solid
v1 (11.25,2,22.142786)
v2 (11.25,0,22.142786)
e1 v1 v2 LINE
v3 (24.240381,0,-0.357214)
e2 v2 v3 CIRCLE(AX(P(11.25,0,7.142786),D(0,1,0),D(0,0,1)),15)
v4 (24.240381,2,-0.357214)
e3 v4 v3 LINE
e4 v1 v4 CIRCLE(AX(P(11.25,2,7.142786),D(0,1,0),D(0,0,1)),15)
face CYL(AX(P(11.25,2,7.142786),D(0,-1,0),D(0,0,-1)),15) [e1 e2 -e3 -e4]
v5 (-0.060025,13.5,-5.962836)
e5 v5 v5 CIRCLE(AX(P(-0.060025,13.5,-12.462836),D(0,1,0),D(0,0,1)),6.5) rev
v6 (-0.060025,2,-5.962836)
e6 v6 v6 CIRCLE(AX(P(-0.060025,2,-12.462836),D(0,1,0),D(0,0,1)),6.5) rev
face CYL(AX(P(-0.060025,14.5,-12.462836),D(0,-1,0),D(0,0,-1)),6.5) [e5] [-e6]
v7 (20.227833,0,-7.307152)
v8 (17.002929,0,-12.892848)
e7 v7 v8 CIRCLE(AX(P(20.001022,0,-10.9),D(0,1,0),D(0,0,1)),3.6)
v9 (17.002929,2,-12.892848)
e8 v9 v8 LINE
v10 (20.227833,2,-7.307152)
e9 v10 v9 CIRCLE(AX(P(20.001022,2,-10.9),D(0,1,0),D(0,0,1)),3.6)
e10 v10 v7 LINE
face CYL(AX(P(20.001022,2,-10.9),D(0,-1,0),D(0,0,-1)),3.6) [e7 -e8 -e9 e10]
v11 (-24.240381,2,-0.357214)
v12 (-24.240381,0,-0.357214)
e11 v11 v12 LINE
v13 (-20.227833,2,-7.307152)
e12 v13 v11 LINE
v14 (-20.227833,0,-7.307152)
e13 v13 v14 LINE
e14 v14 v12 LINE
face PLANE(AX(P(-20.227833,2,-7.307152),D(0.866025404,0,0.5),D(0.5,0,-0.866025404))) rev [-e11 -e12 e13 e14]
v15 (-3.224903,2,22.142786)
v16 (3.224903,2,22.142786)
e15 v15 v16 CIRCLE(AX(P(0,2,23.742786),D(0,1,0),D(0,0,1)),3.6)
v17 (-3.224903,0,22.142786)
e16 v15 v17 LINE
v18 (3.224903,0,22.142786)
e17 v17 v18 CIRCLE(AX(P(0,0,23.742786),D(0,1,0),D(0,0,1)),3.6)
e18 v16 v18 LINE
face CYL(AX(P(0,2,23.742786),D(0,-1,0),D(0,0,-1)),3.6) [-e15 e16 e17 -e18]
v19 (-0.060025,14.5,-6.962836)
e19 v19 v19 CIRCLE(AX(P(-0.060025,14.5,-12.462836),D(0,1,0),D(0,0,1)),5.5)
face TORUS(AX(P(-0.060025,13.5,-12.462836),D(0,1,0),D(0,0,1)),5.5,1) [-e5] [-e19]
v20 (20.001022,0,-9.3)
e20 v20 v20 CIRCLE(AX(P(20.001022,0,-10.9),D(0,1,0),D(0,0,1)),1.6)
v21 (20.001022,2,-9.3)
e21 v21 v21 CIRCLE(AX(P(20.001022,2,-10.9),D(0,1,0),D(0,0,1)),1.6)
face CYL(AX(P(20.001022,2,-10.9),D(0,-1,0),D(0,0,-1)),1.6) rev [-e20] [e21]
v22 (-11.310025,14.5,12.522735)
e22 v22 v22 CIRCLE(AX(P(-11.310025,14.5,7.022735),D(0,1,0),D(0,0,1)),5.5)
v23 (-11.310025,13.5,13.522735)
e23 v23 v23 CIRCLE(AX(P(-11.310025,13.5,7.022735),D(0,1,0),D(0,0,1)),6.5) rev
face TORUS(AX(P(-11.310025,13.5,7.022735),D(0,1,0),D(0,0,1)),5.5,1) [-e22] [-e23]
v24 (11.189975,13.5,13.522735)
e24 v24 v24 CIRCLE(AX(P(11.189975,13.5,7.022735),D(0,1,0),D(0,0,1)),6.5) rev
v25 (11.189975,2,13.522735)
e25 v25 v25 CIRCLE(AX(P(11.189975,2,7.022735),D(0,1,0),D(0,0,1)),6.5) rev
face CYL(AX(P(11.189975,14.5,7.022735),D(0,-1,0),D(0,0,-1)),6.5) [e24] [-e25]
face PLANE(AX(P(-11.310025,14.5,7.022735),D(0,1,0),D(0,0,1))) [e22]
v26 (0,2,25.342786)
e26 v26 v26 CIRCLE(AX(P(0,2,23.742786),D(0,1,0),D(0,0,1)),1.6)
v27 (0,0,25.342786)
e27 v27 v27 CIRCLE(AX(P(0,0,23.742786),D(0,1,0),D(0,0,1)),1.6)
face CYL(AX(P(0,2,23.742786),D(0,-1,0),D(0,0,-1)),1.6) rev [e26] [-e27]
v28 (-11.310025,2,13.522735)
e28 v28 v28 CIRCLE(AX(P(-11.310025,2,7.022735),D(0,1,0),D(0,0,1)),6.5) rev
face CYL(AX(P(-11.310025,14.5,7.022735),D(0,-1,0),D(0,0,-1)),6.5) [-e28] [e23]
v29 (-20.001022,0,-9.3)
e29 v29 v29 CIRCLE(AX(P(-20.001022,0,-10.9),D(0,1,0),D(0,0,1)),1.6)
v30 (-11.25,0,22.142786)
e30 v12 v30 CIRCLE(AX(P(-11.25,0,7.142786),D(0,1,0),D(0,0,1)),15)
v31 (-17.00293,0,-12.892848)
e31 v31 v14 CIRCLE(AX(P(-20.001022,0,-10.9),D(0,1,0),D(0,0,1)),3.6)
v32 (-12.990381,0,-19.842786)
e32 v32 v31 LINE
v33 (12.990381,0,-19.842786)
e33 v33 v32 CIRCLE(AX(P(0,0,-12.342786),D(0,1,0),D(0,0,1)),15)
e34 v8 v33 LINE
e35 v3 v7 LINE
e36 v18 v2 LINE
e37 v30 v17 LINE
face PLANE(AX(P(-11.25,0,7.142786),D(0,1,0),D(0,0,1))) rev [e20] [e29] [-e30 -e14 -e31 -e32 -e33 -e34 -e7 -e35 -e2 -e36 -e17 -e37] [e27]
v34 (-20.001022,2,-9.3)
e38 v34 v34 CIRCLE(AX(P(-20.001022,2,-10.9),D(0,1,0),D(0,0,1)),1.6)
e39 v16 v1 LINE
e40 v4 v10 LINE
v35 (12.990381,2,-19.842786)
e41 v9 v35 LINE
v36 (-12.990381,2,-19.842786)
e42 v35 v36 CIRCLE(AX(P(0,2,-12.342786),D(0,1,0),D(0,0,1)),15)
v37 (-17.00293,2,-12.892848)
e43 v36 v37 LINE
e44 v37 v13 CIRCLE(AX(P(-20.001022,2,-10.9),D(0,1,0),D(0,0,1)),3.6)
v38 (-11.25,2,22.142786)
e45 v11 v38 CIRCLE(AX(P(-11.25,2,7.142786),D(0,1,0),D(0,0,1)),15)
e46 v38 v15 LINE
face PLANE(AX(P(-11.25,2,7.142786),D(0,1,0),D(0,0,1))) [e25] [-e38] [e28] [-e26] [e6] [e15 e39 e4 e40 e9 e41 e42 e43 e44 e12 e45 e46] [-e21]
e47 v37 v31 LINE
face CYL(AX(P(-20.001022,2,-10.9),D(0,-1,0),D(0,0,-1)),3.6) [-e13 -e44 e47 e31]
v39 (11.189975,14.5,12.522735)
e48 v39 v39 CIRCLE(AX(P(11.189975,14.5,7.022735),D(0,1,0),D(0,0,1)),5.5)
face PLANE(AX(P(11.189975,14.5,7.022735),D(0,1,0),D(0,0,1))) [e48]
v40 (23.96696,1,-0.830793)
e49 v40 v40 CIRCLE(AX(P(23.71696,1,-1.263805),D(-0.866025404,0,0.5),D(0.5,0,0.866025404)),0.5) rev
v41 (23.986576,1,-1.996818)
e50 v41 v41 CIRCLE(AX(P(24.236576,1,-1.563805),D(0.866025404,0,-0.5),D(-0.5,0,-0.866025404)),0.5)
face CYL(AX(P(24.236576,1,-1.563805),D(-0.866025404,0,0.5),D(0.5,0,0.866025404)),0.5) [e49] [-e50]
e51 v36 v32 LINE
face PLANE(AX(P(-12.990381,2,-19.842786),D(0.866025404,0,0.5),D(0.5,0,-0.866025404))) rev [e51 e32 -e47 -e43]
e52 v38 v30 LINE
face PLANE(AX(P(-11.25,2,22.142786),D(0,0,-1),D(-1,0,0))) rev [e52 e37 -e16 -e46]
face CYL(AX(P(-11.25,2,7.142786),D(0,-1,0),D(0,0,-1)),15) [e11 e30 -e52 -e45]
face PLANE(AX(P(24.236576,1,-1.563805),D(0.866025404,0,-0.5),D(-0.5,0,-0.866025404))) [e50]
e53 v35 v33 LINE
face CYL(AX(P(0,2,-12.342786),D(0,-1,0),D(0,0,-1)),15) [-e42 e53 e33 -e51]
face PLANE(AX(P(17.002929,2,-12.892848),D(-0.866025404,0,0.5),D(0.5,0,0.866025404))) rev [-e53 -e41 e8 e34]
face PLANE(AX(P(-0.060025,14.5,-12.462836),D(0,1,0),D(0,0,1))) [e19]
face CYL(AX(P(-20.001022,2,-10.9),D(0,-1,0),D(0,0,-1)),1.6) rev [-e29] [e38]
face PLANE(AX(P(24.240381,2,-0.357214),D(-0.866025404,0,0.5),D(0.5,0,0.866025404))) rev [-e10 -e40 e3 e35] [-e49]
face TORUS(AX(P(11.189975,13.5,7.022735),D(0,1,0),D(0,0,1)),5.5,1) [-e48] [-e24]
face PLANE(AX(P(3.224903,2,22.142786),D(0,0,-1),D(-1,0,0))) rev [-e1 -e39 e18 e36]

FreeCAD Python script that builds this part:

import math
import FreeCAD as App
import Part
import Sketcher
Q = App.Units.Quantity


def edges_at(feature, points):
    """Names of the edges that pass closest to the given points."""
    edges = feature.Shape.Edges
    near = lambda p: min(range(len(edges)), key=lambda i: edges[i].distToShape(Part.Vertex(*p))[0])
    return sorted({f"Edge{near(p) + 1}" for p in points})

doc = App.newDocument("Part")
body = doc.addObject("PartDesign::Body", "Body")

# Sketch on XZ plane
sketch1 = body.newObject("Sketcher::SketchObject", "Sketch")
sketch1.AttachmentSupport = (doc.getObject("XZ_Plane"), [""])
sketch1.MapMode = "FlatFace"
sketch1.addGeometry([
    Part.LineSegment(App.Vector(-11.25, 22.142786, 0), App.Vector(-3.224903, 22.142786, 0)),  # 0
    Part.ArcOfCircle(Part.Circle(App.Vector(0, 23.742786, 0), App.Vector(0, 0, 1), 3.6), math.radians(-26.3878), math.radians(206.3878)),  # 1
    Part.LineSegment(App.Vector(3.224903, 22.142786, 0), App.Vector(11.25, 22.142786, 0)),  # 2
    Part.ArcOfCircle(Part.Circle(App.Vector(11.25, 7.142786, 0), App.Vector(0, 0, 1), 15), math.radians(-30), math.radians(90)),  # 3
    Part.LineSegment(App.Vector(24.240381, -0.357214, 0), App.Vector(20.227833, -7.307152, 0)),  # 4
    Part.ArcOfCircle(Part.Circle(App.Vector(20.001022, -10.9, 0), App.Vector(0, 0, 1), 3.6), math.radians(-146.3878), math.radians(86.3878)),  # 5
    Part.LineSegment(App.Vector(17.002929, -12.892848, 0), App.Vector(12.990381, -19.842786, 0)),  # 6
    Part.ArcOfCircle(Part.Circle(App.Vector(0, -12.342786, 0), App.Vector(0, 0, 1), 15), math.radians(-150), math.radians(-30)),  # 7
    Part.LineSegment(App.Vector(-12.990381, -19.842786, 0), App.Vector(-17.00293, -12.892848, 0)),  # 8
    Part.ArcOfCircle(Part.Circle(App.Vector(-20.001022, -10.9, 0), App.Vector(0, 0, 1), 3.6), math.radians(93.6122), math.radians(326.3878)),  # 9
    Part.LineSegment(App.Vector(-20.227833, -7.307152, 0), App.Vector(-24.240381, -0.357214, 0)),  # 10
    Part.ArcOfCircle(Part.Circle(App.Vector(-11.25, 7.142786, 0), App.Vector(0, 0, 1), 15), math.radians(90), math.radians(210)),  # 11
    Part.Circle(App.Vector(0, 23.742786, 0), App.Vector(0, 0, 1), 1.6),  # 12
    Part.Circle(App.Vector(-20.001022, -10.9, 0), App.Vector(0, 0, 1), 1.6),  # 13
    Part.Circle(App.Vector(20.001022, -10.9, 0), App.Vector(0, 0, 1), 1.6),  # 14
], False)
sketch1.addConstraint([
    Sketcher.Constraint("Coincident", 0, 2, 1, 2),
    Sketcher.Constraint("Coincident", 1, 1, 2, 1),
    Sketcher.Constraint("Tangent", 2, 2, 3, 2),
    Sketcher.Constraint("Tangent", 3, 1, 4, 1),
    Sketcher.Constraint("Coincident", 4, 2, 5, 2),
    Sketcher.Constraint("Coincident", 5, 1, 6, 1),
    Sketcher.Constraint("Tangent", 6, 2, 7, 2),
    Sketcher.Constraint("Tangent", 7, 1, 8, 1),
    Sketcher.Constraint("Coincident", 8, 2, 9, 2),
    Sketcher.Constraint("Coincident", 9, 1, 10, 1),
    Sketcher.Constraint("Tangent", 10, 2, 11, 2),
    Sketcher.Constraint("Tangent", 11, 1, 0, 1),
    Sketcher.Constraint("Horizontal", 0),
    Sketcher.Constraint("Horizontal", 2),
    Sketcher.Constraint("Coincident", 12, 3, 1, 3),
    Sketcher.Constraint("Coincident", 13, 3, 9, 3),
    Sketcher.Constraint("Coincident", 14, 3, 5, 3),
    Sketcher.Constraint("Equal", 1, 5),
    Sketcher.Constraint("Equal", 3, 7),
    Sketcher.Constraint("Equal", 5, 9),
    Sketcher.Constraint("Equal", 7, 11),
    Sketcher.Constraint("Equal", 12, 13),
    Sketcher.Constraint("Equal", 13, 14),
    Sketcher.Constraint("Symmetric", 5, 3, 9, 3, -2),
    Sketcher.Constraint("Symmetric", 3, 3, 11, 3, -2),
    Sketcher.Constraint("Symmetric", 6, 2, 7, 1, -2),
    Sketcher.Constraint("PointOnObject", 1, 3, -2),
    Sketcher.Constraint("Parallel", 4, 6),
    Sketcher.Constraint("Parallel", 8, 10),
    Sketcher.Constraint("Equal", 4, 6),
    Sketcher.Constraint("Radius", 3, Q("15 mm")),
    Sketcher.Constraint("Diameter", 12, Q("3.2 mm")),
    Sketcher.Constraint("Radius", 1, Q("3.6 mm")),
    Sketcher.Constraint("Angle", 4, Q("-120 deg")),
    Sketcher.Constraint("DistanceY", 5, 3, -1, 1, Q("10.9 mm")),
    Sketcher.Constraint("DistanceY", 3, 3, 1, 3, Q("16.6 mm")),
    Sketcher.Constraint("DistanceX", 11, 3, 3, 3, Q("22.5 mm")),
    Sketcher.Constraint("DistanceX", -1, 1, 5, 3, Q("20.001022 mm")),
    Sketcher.Constraint("DistanceX", -1, 1, 5, 1, Q("17.002929 mm")),
])
pad1 = body.newObject("PartDesign::Pad", "Pad")
pad1.Profile = sketch1
pad1.Length = 2
pad1.Reversed = True

# Sketch on XZ plane
sketch2 = body.newObject("Sketcher::SketchObject", "Sketch001")
sketch2.AttachmentSupport = (doc.getObject("XZ_Plane"), [""])
sketch2.MapMode = "FlatFace"
sketch2.addGeometry([
    Part.Circle(App.Vector(-0.060025, -12.462836, 0), App.Vector(0, 0, 1), 6.5),
    Part.Circle(App.Vector(11.189975, 7.022735, 0), App.Vector(0, 0, 1), 6.5),
    Part.Circle(App.Vector(-11.310025, 7.022735, 0), App.Vector(0, 0, 1), 6.5),
], False)
sketch2.addConstraint([
    Sketcher.Constraint("Equal", 0, 1),
    Sketcher.Constraint("Equal", 1, 2),
    Sketcher.Constraint("Horizontal", 1, 3, 2, 3),
    Sketcher.Constraint("Diameter", 0, Q("13 mm")),
    Sketcher.Constraint("DistanceX", 2, 3, 1, 3, Q("22.5 mm")),
    Sketcher.Constraint("DistanceX", 0, 3, 1, 3, Q("11.25 mm")),
    Sketcher.Constraint("DistanceY", 0, 3, 1, 3, Q("19.485572 mm")),
    Sketcher.Constraint("DistanceX", 0, 3, -1, 1, Q("0.060025 mm")),
    Sketcher.Constraint("DistanceY", 0, 3, -1, 1, Q("12.462836 mm")),
])
pad2 = body.newObject("PartDesign::Pad", "Pad001")
pad2.Profile = sketch2
pad2.Length = 14.5
pad2.Reversed = True
doc.recompute()

fillet = body.newObject("PartDesign::Fillet", "Fillet")
fillet.Base = (pad2, edges_at(pad2, [(-6.56, 14.5, -12.463), (4.69, 14.5, 7.023), (-17.81, 14.5, 7.023)]))
fillet.Radius = 1

# Sketch on an angled plane
sketch3 = body.newObject("Sketcher::SketchObject", "Sketch002")
sketch3.Placement = App.Placement(App.Vector(18.334964, 0, -10.585696), App.Rotation(App.Vector(-0.5, 0, -0.866025404), App.Vector(0, 1, 0), App.Vector(0.866025404, 0, -0.5), "ZXY"))
sketch3.addGeometry(Part.Circle(App.Vector(-10.763993, 1, 0), App.Vector(0, 0, 1), 0.5), False)
sketch3.addConstraint([
    Sketcher.Constraint("Diameter", 0, Q("1 mm")),
    Sketcher.Constraint("DistanceY", -1, 1, 0, 3, Q("1 mm")),
    Sketcher.Constraint("DistanceX", 0, 3, -1, 1, Q("10.763993 mm")),
])
pad3 = body.newObject("PartDesign::Pad", "Pad002")
pad3.Profile = sketch3
pad3.Length = 0.6

doc.recompute()
